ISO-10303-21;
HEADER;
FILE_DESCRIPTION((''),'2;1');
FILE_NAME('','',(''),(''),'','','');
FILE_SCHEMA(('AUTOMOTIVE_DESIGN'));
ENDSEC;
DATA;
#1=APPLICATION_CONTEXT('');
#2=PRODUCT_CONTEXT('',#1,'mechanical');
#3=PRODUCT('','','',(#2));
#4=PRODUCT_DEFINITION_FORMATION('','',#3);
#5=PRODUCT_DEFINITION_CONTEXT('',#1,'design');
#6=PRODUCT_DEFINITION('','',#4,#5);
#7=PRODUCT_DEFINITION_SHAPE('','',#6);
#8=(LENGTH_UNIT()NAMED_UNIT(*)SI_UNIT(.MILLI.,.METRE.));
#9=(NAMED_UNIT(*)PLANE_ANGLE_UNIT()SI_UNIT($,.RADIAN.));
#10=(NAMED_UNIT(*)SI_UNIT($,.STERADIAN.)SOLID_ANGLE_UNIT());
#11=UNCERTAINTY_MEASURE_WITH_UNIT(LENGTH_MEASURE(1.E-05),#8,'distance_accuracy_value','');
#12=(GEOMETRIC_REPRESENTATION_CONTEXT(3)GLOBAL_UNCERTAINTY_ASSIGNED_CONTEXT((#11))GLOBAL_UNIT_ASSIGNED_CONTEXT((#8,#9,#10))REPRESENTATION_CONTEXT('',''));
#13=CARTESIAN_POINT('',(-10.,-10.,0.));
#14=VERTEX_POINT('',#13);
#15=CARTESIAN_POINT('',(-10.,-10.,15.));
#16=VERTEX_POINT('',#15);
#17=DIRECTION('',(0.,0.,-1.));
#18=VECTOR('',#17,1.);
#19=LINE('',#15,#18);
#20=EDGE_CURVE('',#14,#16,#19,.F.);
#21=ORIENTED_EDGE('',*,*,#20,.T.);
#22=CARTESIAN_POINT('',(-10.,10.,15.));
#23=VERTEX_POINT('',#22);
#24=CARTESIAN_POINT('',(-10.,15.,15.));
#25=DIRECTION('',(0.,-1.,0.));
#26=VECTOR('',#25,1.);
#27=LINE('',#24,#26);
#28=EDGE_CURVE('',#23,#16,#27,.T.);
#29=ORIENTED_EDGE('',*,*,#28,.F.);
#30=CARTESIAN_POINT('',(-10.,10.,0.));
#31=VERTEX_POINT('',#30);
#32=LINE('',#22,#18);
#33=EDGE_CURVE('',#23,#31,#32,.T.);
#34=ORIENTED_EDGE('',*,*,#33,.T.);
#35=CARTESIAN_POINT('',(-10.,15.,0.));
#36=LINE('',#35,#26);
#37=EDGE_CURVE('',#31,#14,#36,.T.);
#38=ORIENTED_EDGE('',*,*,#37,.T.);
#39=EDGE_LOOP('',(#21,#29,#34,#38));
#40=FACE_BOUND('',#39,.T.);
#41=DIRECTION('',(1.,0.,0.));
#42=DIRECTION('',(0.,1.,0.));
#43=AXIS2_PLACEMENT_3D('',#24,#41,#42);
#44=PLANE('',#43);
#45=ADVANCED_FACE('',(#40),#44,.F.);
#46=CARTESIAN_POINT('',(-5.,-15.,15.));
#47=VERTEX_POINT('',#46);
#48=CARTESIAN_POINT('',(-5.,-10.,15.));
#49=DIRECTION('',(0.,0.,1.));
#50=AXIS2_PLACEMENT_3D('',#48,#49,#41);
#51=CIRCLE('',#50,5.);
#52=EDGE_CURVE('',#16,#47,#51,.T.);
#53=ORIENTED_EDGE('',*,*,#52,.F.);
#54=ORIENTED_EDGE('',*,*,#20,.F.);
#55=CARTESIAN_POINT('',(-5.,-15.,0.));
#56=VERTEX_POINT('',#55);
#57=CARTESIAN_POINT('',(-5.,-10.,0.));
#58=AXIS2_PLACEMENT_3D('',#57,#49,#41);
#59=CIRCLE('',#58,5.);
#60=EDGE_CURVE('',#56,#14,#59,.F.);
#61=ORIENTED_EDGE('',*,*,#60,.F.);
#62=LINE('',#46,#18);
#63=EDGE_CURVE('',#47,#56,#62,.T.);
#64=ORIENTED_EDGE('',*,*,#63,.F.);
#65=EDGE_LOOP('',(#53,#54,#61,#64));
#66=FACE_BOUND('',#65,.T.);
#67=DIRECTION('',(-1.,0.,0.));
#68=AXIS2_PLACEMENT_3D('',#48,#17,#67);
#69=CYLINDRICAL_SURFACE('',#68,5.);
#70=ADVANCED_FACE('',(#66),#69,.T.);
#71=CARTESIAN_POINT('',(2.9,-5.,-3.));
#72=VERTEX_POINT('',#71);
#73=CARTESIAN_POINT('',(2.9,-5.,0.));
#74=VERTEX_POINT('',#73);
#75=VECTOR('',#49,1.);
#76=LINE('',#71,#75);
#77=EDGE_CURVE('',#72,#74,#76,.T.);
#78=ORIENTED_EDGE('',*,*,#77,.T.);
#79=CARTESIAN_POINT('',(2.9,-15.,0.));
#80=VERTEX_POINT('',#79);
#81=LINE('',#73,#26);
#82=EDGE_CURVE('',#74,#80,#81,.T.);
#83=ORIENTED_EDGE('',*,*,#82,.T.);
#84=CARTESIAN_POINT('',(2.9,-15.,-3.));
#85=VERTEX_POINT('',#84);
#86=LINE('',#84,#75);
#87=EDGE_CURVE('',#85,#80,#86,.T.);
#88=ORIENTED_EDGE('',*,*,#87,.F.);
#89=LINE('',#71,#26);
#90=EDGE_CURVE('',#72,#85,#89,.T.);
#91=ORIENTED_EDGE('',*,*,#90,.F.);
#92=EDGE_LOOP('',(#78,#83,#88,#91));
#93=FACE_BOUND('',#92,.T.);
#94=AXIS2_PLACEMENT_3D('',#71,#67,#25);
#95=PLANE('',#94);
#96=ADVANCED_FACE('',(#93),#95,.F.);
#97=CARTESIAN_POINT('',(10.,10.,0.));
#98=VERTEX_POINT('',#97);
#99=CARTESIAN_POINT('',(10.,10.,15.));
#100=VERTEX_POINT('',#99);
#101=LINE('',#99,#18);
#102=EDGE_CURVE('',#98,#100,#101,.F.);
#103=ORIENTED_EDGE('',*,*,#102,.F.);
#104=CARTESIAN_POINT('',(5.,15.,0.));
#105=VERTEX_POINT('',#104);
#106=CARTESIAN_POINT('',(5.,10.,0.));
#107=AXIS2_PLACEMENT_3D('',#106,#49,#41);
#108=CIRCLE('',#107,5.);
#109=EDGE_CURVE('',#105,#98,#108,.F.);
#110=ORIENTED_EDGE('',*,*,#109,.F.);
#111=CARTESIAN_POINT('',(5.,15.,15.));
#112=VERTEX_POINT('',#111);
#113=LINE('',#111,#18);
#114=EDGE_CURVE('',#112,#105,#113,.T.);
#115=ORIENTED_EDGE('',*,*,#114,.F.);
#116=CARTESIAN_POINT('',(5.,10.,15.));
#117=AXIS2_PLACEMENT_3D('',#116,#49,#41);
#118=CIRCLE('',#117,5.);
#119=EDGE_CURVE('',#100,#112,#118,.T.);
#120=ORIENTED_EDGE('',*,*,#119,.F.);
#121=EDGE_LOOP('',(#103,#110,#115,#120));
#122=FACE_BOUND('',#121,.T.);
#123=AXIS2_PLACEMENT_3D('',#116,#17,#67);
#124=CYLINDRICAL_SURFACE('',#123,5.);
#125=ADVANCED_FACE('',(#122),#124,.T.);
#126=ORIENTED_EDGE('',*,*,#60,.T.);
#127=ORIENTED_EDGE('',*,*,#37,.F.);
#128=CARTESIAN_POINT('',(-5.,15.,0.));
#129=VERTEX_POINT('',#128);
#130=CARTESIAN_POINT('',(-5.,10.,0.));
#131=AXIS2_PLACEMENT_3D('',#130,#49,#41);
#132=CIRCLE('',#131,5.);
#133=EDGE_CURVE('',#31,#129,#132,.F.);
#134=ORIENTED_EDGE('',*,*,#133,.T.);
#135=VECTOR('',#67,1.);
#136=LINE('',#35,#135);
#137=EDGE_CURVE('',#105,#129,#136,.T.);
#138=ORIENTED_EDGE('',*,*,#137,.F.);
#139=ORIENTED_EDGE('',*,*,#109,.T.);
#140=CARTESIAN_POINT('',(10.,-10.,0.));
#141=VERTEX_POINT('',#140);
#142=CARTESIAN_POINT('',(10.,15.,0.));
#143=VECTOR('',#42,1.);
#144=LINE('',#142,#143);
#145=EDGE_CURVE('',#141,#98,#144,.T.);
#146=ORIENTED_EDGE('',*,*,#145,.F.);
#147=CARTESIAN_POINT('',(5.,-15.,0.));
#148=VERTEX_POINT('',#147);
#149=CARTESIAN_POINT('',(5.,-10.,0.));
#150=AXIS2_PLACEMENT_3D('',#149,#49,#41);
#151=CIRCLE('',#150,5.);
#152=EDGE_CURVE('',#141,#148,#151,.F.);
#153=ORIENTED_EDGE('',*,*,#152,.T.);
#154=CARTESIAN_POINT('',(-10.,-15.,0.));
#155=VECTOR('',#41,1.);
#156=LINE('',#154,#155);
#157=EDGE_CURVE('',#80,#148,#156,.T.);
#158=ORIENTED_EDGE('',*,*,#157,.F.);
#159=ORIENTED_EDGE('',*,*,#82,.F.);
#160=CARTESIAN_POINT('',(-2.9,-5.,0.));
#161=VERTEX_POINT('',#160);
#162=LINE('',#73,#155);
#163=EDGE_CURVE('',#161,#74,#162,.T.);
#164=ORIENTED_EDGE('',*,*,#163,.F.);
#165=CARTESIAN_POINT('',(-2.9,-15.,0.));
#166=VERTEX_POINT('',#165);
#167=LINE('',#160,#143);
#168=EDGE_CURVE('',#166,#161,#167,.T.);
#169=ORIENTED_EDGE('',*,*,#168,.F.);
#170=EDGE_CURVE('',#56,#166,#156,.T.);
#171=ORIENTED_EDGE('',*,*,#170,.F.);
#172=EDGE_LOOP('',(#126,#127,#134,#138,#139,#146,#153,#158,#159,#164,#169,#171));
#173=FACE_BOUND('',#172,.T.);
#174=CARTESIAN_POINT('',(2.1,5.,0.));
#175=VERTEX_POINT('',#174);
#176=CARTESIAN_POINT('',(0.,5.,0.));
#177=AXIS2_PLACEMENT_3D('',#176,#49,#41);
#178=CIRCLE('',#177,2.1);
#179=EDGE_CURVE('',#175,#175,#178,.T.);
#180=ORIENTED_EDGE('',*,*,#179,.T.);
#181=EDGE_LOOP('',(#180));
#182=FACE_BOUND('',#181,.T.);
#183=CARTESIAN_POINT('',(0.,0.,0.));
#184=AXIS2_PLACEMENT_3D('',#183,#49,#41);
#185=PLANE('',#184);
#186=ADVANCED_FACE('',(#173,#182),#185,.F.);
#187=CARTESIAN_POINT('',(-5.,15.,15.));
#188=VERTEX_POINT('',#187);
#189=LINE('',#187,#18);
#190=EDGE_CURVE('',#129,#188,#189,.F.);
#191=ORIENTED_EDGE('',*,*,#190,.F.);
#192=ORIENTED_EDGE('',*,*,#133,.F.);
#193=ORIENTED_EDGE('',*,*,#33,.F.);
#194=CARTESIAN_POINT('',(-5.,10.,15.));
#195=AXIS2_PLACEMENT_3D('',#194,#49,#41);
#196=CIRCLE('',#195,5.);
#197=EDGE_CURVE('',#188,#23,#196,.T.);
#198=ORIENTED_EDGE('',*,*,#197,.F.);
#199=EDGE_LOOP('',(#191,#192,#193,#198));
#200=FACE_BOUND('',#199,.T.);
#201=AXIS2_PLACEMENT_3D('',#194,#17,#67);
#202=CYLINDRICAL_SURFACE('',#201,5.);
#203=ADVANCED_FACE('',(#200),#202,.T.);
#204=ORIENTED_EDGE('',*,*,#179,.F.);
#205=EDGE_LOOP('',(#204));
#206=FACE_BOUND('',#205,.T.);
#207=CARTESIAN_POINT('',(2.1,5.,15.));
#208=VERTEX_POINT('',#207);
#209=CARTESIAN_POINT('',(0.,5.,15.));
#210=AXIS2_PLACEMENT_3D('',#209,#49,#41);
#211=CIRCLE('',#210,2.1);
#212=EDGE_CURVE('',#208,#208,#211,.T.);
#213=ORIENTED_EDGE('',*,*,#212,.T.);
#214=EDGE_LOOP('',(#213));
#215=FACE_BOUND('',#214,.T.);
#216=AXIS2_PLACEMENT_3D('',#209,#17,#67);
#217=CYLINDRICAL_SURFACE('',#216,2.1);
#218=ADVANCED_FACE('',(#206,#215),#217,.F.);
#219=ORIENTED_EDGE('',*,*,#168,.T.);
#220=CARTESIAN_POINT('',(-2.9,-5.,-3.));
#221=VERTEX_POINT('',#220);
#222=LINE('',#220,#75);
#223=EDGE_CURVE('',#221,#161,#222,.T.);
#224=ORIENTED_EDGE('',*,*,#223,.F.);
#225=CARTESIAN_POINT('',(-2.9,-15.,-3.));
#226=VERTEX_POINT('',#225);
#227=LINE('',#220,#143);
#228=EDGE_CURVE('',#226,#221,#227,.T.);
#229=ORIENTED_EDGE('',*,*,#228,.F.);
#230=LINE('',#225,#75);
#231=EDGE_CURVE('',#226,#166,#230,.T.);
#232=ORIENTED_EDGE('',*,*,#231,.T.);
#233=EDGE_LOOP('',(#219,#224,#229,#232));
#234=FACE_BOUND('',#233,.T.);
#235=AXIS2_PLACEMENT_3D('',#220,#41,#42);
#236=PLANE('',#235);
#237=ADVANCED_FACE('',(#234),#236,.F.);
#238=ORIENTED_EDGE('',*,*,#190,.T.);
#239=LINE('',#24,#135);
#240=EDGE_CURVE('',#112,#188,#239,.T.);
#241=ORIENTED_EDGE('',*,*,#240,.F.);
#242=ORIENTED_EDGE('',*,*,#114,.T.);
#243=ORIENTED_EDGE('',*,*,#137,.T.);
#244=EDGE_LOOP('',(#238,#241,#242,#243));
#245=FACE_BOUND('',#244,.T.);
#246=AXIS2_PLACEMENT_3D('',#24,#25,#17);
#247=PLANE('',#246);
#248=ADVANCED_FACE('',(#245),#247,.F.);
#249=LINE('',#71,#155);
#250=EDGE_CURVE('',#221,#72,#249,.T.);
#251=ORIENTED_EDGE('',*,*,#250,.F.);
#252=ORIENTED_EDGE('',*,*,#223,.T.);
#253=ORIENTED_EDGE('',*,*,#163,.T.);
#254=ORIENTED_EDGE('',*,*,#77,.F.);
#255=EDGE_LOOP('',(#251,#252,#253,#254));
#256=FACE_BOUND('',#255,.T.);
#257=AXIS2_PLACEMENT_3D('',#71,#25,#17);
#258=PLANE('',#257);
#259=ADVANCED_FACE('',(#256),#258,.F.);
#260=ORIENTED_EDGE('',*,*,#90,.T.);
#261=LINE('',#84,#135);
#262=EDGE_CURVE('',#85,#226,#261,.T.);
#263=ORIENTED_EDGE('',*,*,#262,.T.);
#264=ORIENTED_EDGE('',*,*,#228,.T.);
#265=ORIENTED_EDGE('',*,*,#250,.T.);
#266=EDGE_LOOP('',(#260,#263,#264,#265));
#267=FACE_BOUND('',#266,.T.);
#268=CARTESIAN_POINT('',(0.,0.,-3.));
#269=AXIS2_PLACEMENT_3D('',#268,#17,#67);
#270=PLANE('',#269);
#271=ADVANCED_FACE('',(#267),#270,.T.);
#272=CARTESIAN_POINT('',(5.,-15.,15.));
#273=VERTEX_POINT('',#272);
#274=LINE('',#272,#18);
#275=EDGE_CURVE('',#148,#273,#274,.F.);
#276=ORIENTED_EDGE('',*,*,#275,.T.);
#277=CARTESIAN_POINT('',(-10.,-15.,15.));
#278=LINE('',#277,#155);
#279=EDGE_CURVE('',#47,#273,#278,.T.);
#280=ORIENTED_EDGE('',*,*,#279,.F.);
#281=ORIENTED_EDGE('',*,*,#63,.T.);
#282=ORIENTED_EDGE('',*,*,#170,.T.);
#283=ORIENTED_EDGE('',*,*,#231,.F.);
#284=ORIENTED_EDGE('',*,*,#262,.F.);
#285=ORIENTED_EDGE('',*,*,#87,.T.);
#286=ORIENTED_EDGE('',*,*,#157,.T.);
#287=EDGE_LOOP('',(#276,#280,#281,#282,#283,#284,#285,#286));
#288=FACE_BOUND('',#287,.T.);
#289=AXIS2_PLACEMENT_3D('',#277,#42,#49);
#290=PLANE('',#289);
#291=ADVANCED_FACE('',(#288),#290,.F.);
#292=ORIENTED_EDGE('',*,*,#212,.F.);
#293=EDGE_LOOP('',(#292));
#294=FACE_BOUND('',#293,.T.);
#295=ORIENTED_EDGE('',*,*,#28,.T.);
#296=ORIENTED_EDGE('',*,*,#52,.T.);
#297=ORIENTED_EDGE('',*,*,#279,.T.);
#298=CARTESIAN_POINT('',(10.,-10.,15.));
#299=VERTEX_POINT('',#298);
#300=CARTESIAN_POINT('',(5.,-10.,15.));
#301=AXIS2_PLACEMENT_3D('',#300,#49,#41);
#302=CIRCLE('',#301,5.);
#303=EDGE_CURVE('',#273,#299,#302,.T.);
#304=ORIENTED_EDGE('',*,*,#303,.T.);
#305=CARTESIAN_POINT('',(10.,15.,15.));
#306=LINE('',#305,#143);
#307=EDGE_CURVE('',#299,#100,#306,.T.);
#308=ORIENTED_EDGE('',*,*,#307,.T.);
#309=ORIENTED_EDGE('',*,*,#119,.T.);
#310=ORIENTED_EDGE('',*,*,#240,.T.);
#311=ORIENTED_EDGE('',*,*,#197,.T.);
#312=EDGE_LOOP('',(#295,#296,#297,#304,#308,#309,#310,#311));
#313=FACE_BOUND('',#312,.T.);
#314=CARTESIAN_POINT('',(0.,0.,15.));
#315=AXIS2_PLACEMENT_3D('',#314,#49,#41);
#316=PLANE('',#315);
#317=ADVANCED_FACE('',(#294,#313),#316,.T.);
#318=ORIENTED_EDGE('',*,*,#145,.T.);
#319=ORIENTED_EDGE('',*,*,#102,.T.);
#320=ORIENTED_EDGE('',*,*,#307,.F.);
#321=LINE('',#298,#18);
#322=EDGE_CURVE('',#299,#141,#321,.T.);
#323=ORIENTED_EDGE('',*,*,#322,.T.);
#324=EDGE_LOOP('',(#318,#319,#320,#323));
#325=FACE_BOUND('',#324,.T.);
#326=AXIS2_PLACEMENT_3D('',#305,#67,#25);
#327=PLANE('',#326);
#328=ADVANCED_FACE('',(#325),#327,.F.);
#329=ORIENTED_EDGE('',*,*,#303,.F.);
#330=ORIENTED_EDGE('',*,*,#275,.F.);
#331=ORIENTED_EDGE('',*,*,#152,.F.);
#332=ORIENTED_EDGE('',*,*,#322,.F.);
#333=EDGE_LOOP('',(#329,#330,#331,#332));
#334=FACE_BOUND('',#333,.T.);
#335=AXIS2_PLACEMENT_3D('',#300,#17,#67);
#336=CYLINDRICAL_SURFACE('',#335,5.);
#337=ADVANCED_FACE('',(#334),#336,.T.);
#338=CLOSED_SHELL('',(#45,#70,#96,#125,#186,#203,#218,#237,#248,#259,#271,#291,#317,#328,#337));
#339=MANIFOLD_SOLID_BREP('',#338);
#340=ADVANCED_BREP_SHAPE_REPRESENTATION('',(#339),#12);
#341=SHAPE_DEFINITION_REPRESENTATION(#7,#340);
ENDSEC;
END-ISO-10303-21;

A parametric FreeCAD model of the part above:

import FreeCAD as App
import Part
import Sketcher
from FreeCAD import Vector


def edges_at(feature, points):
    """Names of the edges that pass closest to the given points."""
    edges = feature.Shape.Edges
    near = lambda p: min(range(len(edges)), key=lambda i: edges[i].distToShape(Part.Vertex(*p))[0])
    return sorted({f"Edge{near(p) + 1}" for p in points})


def add_polygon(sketch, points):
    """Adds a closed chain of lines whose ends are joined by coincident constraints."""
    first, n = sketch.GeometryCount, len(points)
    for a, b in zip(points, points[1:] + points[:1]):
        sketch.addGeometry(Part.LineSegment(App.Vector(*a, 0), App.Vector(*b, 0)), False)
    for i in range(n):
        sketch.addConstraint(Sketcher.Constraint("Coincident", first + i, 2, first + (i + 1) % n, 1))

doc = App.newDocument("Part")
body = doc.addObject("PartDesign::Body", "Body")

sketch1 = body.newObject("Sketcher::SketchObject", "Sketch")
sketch1.AttachmentSupport = (doc.getObject("XY_Plane"), [""])
sketch1.MapMode = "FlatFace"
add_polygon(sketch1, [(-10, 15), (-10, -15), (10, -15), (10, 15)])
sketch1.addGeometry(Part.Circle(Vector(0, 5, 0), Vector(0, 0, 1), 2.1), False)
sketch1.addConstraint(Sketcher.Constraint("Vertical", 0))
sketch1.addConstraint(Sketcher.Constraint("Horizontal", 1))
sketch1.addConstraint(Sketcher.Constraint("Vertical", 2))
sketch1.addConstraint(Sketcher.Constraint("Horizontal", 3))
sketch1.addConstraint(Sketcher.Constraint("Symmetric", 0, 2, 2, 2, -1, 1))
sketch1.addConstraint(Sketcher.Constraint("PointOnObject", 4, 3, -2))
sketch1.addConstraint(Sketcher.Constraint("Diameter", 4, 4.2))
sketch1.addConstraint(Sketcher.Constraint("DistanceX", 1, 1, 1, 2, 20.0))
sketch1.addConstraint(Sketcher.Constraint("DistanceY", 0, 2, 0, 1, 30.0))
sketch1.addConstraint(Sketcher.Constraint("DistanceY", -1, 1, 4, 3, 5.0))
pad1 = body.newObject("PartDesign::Pad", "Pad")
pad1.Profile = sketch1
pad1.Length = 15

sketch2 = body.newObject("Sketcher::SketchObject", "Sketch001")
sketch2.AttachmentSupport = (doc.getObject("XY_Plane"), [""])
sketch2.MapMode = "FlatFace"
add_polygon(sketch2, [(3, -5), (3, -15), (-3, -15), (-3, -5)])
sketch2.addConstraint(Sketcher.Constraint("Vertical", 0))
sketch2.addConstraint(Sketcher.Constraint("Horizontal", 1))
sketch2.addConstraint(Sketcher.Constraint("Vertical", 2))
sketch2.addConstraint(Sketcher.Constraint("Horizontal", 3))
sketch2.addConstraint(Sketcher.Constraint("DistanceY", 0, 2, 0, 1, 10.0))
sketch2.addConstraint(Sketcher.Constraint("DistanceX", 1, 2, 1, 1, 5.8))
sketch2.addConstraint(Sketcher.Constraint("DistanceY", 0, 2, -1, 1, 15.0))
sketch2.addConstraint(Sketcher.Constraint("DistanceX", -1, 1, 0, 2, 2.9))
pad2 = body.newObject("PartDesign::Pad", "Pad001")
pad2.Profile = sketch2
pad2.Length = 3
pad2.Reversed = True
doc.recompute()

fillet = body.newObject("PartDesign::Fillet", "Fillet")
fillet.Base = (pad2, edges_at(pad2, [
    (10, -15, 7.5),
    (-10, -15, 7.5),
    (-10, 15, 7.5),
    (10, 15, 7.5),
]))
fillet.Radius = 5

doc.recompute()
